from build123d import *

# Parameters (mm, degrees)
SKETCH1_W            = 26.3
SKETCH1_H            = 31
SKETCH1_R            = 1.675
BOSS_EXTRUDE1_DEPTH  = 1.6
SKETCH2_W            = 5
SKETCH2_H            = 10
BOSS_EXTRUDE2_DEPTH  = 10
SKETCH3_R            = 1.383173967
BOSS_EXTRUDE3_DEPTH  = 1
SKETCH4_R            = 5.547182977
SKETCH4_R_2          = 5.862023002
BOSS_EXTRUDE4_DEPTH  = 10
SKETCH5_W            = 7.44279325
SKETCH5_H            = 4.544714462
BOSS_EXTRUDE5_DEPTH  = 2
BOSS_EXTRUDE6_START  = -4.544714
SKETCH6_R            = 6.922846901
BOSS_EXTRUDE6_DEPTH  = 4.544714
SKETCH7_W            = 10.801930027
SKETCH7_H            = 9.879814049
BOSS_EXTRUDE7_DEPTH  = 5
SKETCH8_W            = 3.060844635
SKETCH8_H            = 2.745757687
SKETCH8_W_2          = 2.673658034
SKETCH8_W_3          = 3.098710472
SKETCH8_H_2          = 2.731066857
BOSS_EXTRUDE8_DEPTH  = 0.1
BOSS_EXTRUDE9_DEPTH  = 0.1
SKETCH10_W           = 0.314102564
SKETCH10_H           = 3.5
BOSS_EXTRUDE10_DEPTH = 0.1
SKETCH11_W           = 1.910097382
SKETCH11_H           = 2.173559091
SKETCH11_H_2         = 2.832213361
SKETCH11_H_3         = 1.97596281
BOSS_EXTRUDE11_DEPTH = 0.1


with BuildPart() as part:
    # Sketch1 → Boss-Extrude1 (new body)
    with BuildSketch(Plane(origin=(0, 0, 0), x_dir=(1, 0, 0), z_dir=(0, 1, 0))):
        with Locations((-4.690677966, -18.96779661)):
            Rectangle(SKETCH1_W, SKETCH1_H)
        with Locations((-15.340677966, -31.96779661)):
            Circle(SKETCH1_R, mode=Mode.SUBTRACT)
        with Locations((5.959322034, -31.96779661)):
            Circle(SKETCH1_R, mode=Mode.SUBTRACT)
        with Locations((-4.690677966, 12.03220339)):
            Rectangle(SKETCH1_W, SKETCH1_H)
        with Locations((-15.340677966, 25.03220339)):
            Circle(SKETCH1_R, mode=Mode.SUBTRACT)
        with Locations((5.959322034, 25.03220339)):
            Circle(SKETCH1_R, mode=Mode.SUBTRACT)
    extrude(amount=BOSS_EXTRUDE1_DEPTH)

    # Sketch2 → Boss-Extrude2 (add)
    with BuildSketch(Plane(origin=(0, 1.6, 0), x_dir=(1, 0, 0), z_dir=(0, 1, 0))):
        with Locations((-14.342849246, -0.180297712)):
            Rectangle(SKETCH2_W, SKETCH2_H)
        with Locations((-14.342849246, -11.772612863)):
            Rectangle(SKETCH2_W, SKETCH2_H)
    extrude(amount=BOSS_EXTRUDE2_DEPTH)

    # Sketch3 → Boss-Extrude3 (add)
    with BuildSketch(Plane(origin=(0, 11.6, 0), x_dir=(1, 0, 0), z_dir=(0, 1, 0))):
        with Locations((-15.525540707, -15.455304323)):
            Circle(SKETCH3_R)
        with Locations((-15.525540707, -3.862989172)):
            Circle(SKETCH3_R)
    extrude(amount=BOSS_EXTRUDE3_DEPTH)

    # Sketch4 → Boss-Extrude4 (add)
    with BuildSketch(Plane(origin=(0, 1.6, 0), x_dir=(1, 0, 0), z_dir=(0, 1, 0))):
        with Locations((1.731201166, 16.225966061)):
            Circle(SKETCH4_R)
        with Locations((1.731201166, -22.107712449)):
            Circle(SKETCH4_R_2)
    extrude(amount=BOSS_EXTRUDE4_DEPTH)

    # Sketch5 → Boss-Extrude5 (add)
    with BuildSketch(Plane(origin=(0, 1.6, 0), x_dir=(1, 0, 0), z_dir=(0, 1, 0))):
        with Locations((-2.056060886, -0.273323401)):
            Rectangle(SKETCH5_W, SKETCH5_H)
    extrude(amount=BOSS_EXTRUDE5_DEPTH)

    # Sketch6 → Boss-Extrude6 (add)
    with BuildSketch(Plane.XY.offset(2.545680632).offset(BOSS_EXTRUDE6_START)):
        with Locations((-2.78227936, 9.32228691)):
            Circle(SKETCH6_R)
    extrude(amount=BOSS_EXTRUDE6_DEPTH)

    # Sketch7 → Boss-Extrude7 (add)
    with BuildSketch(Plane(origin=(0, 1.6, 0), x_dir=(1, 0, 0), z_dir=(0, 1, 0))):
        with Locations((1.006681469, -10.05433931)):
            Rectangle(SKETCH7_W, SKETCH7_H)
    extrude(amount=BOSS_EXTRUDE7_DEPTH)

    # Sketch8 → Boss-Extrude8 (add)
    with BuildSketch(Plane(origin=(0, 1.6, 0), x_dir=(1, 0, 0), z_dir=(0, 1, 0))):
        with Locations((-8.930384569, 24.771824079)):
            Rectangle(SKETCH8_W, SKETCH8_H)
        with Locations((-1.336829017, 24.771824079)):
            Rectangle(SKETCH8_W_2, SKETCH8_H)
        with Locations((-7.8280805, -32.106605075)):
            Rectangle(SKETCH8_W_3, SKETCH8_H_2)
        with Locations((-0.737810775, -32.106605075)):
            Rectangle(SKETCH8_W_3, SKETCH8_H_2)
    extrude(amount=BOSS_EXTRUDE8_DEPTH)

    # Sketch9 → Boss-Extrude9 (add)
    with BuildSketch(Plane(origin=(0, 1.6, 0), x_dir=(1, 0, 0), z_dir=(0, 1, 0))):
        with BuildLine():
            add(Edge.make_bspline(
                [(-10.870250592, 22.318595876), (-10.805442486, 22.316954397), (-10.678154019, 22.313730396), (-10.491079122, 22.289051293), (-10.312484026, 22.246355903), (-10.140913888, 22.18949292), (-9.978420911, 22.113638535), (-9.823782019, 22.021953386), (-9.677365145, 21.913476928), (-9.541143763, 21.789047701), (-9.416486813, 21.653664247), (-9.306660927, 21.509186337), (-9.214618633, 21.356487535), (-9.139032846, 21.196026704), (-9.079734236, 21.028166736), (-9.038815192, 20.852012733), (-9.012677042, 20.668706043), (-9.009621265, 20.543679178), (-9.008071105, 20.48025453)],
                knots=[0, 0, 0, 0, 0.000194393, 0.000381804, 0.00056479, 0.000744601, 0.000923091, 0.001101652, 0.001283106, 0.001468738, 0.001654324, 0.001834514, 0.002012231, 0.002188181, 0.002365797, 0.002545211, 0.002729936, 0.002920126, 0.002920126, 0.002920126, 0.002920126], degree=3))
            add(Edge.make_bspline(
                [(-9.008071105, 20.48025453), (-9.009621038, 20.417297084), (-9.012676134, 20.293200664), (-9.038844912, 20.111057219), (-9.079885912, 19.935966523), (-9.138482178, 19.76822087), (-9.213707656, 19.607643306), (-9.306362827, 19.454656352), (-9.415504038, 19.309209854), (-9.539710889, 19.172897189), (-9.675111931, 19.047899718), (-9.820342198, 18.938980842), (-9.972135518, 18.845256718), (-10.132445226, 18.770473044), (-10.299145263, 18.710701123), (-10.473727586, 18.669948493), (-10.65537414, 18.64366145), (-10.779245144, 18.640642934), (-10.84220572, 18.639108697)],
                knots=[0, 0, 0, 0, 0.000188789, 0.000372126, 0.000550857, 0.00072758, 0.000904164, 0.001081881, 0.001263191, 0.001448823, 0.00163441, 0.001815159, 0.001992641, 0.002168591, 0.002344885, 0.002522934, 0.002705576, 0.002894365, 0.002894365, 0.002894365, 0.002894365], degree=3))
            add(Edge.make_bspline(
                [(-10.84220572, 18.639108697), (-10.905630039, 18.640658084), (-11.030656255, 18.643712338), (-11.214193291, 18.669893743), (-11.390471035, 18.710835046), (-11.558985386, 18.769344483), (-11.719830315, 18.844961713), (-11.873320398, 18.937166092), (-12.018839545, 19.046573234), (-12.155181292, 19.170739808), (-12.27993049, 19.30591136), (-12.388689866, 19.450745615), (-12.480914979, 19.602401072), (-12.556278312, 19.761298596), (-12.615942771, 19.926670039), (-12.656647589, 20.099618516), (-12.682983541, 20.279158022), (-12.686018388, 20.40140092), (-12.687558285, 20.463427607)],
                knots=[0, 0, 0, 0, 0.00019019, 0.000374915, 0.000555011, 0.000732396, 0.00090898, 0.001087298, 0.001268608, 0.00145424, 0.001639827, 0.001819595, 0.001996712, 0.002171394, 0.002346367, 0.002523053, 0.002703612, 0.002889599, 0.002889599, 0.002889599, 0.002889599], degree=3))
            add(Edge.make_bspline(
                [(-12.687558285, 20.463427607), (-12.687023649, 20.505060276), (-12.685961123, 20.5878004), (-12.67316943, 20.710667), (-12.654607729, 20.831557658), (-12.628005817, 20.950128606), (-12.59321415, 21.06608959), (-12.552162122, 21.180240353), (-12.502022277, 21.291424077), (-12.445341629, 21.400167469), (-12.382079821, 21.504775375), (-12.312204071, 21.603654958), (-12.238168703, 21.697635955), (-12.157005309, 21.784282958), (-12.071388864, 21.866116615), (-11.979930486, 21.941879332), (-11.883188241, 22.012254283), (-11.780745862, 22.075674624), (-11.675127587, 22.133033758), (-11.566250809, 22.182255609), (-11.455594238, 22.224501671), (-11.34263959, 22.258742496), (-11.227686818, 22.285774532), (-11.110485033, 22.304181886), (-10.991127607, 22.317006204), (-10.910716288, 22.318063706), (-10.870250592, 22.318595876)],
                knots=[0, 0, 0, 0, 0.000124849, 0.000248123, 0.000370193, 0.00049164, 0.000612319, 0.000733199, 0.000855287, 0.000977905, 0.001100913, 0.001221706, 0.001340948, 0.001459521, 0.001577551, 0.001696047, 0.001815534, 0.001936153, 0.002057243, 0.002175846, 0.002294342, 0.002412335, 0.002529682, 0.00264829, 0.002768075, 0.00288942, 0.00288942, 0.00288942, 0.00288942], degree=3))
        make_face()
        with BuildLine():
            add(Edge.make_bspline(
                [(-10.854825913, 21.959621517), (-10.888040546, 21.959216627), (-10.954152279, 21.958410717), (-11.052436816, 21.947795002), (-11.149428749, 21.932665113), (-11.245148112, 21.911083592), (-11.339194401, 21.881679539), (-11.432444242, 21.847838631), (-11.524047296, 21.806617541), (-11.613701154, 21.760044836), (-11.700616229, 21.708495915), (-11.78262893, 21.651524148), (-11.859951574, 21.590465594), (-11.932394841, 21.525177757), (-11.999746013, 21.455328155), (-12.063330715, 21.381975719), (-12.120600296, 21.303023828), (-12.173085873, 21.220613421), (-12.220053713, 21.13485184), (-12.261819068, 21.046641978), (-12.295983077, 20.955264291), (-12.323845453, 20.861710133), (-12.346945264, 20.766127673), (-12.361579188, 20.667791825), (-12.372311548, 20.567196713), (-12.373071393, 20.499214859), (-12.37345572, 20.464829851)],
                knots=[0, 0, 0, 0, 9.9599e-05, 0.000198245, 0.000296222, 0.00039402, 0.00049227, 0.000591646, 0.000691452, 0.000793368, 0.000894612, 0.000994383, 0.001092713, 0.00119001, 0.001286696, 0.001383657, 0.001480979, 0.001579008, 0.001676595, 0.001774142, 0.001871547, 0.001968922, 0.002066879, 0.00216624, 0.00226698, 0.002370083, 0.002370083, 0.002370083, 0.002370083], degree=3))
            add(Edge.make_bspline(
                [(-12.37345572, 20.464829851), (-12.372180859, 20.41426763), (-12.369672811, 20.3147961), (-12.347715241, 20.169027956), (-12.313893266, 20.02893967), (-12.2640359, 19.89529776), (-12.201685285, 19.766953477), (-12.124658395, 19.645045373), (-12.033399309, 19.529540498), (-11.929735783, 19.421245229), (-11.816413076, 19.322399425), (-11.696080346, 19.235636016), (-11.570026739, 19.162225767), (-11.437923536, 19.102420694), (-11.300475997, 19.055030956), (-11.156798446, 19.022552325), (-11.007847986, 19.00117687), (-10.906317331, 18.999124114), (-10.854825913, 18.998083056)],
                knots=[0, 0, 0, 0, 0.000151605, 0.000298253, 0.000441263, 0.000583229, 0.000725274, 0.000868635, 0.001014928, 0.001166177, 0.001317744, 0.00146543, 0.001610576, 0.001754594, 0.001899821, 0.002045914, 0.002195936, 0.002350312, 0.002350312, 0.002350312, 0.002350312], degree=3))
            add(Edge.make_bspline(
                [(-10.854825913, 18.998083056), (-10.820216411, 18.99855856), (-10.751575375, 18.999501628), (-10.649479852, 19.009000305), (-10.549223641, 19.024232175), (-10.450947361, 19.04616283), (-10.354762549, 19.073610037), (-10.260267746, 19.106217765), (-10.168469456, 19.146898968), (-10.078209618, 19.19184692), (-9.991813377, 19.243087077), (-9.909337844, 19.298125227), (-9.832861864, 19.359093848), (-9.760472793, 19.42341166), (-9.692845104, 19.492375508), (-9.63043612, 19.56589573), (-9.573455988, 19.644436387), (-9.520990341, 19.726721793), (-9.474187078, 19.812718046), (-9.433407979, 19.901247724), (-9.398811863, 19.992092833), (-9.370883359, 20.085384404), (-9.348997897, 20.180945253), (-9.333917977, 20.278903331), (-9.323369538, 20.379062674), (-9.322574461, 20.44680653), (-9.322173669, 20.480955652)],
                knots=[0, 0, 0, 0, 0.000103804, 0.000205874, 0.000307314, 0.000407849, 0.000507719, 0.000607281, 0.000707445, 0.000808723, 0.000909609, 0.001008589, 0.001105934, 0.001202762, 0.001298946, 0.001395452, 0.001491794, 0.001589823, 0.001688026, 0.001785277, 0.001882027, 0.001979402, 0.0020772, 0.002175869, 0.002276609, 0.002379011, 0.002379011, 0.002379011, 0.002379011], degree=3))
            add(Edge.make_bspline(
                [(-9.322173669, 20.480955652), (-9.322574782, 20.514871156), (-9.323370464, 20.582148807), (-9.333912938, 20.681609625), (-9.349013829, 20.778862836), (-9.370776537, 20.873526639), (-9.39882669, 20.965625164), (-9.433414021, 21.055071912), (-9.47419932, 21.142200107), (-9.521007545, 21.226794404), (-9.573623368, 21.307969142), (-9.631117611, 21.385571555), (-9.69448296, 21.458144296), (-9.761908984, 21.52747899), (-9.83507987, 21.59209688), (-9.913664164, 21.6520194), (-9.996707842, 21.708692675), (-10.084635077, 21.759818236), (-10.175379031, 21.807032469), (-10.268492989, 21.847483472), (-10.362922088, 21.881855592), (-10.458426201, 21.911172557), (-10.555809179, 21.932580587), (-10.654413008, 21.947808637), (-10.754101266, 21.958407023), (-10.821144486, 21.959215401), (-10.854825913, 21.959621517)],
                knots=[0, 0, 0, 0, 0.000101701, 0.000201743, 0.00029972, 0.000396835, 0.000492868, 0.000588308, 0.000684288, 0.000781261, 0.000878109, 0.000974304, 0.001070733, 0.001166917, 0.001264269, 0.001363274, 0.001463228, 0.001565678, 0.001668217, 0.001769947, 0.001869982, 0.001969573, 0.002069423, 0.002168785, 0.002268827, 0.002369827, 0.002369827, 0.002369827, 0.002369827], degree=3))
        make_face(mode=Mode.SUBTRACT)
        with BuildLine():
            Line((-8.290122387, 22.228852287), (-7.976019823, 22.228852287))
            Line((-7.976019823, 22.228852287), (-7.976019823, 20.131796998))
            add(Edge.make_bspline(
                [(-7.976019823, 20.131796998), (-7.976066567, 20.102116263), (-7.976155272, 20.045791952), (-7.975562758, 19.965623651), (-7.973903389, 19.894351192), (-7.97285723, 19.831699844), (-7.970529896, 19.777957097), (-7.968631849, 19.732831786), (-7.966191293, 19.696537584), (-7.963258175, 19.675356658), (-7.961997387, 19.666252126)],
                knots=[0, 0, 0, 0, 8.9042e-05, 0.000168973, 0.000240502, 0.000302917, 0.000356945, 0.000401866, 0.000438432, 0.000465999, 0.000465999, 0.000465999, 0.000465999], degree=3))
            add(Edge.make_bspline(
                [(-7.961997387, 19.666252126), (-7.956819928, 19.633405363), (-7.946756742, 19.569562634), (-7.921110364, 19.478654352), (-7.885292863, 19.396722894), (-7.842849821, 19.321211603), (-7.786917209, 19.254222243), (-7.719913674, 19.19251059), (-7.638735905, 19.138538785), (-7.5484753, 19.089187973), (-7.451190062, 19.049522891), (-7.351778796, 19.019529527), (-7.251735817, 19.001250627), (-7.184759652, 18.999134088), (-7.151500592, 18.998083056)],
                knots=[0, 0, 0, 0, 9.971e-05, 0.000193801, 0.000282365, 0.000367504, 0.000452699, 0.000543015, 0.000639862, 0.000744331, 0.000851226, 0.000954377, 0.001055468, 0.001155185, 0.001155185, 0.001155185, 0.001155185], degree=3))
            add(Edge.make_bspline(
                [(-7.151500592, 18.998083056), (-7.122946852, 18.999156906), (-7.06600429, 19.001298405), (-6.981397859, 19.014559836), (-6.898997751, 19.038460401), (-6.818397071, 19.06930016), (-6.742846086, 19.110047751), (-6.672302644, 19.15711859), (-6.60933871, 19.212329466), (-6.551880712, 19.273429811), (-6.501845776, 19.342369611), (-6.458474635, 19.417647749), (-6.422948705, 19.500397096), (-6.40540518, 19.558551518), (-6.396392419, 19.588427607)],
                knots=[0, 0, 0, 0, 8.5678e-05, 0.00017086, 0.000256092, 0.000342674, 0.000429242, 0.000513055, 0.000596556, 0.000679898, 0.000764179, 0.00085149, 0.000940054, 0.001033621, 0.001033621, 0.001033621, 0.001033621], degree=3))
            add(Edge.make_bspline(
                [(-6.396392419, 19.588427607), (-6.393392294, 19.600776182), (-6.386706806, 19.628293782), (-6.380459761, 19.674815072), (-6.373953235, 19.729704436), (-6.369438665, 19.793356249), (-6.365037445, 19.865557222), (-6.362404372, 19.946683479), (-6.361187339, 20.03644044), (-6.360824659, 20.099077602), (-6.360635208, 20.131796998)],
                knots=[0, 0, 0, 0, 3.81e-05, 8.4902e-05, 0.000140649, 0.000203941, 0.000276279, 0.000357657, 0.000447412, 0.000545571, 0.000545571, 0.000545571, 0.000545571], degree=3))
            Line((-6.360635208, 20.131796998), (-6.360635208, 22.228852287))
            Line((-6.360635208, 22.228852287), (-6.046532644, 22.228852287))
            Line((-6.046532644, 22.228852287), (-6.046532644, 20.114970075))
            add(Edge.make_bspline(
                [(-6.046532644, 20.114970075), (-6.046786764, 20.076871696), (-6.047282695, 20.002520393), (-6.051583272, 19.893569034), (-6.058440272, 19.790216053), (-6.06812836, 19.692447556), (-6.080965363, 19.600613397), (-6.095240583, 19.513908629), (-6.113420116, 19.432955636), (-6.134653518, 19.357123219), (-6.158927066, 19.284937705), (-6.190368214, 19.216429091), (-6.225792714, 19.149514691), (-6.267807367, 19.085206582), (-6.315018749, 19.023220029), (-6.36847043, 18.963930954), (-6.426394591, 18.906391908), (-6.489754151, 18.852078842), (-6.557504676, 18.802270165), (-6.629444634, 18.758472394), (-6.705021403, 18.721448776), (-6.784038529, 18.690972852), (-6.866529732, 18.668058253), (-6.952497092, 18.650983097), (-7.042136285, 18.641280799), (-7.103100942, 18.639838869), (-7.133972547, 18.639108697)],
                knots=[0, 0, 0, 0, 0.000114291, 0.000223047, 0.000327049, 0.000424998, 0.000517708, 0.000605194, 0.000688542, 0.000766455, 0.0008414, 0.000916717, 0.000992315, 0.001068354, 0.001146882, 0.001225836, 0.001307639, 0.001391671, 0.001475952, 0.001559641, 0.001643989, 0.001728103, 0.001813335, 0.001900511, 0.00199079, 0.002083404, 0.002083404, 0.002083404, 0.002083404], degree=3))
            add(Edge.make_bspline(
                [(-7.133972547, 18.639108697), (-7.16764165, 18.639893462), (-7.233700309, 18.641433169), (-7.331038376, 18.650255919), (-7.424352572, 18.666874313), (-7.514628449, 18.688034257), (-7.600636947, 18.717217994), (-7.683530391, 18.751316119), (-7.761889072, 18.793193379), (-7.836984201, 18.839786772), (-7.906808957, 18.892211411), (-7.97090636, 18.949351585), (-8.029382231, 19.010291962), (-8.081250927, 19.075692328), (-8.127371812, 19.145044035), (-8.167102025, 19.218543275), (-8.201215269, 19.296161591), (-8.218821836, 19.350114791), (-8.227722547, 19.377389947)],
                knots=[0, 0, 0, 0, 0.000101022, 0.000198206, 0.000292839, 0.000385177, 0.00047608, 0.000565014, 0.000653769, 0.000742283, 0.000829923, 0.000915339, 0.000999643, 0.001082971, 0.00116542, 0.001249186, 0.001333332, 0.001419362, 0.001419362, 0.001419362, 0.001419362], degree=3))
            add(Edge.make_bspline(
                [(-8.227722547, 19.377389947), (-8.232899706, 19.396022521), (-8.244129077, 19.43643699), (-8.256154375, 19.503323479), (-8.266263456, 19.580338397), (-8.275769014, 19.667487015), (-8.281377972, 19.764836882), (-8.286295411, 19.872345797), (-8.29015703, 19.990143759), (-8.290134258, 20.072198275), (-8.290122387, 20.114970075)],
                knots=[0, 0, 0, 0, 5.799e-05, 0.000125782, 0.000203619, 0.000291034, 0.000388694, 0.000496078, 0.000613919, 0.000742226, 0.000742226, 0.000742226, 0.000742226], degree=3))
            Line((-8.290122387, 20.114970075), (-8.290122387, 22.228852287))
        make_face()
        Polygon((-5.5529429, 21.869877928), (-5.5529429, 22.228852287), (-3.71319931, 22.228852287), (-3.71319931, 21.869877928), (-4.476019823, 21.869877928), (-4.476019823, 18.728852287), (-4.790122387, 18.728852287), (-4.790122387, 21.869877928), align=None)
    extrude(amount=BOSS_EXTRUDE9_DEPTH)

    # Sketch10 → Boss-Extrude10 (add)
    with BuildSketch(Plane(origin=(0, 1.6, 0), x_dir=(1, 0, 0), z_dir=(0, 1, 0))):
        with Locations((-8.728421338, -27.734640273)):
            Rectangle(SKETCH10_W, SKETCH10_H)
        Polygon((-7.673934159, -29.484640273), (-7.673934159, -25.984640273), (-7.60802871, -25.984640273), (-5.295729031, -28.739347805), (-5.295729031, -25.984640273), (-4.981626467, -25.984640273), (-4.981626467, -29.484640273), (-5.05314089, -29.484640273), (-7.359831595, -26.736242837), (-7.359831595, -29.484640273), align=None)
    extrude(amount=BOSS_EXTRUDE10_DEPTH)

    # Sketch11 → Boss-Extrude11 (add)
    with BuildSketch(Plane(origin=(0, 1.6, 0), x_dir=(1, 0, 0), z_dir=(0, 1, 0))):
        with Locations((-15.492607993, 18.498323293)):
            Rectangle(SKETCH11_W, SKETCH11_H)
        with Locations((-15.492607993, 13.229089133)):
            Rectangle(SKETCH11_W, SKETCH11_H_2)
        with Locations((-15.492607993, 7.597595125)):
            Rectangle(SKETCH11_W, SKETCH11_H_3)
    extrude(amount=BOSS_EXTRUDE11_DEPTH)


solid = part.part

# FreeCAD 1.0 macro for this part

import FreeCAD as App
import Part
import Sketcher


def add_polygon(sketch, points):
    """Adds a closed chain of lines whose ends are joined by coincident constraints."""
    first, n = sketch.GeometryCount, len(points)
    for a, b in zip(points, points[1:] + points[:1]):
        sketch.addGeometry(Part.LineSegment(App.Vector(*a, 0), App.Vector(*b, 0)), False)
    for i in range(n):
        sketch.addConstraint(Sketcher.Constraint("Coincident", first + i, 2, first + (i + 1) % n, 1))

doc = App.newDocument("Part")
body = doc.addObject("PartDesign::Body", "Body")

sketch1 = doc.addObject("Sketcher::SketchObject", "Sketch")
body.addObject(sketch1)
sketch1.AttachmentSupport = (doc.XZ_Plane, [""])
sketch1.MapMode = "FlatFace"
add_polygon(sketch1, [(-17.8, 34.5), (8.5, 34.5), (8.5, -27.5), (-17.8, -27.5)])
sketch1.addGeometry(Part.Circle(App.Vector(-15.3, 32, 0), App.Vector(0, 0, 1), 1.7), False)
sketch1.addGeometry(Part.Circle(App.Vector(6, 32, 0), App.Vector(0, 0, 1), 1.7), False)
sketch1.addGeometry(Part.Circle(App.Vector(-15.3, -25, 0), App.Vector(0, 0, 1), 1.7), False)
sketch1.addGeometry(Part.Circle(App.Vector(6, -25, 0), App.Vector(0, 0, 1), 1.7), False)
sketch1.addConstraint([
    Sketcher.Constraint("Horizontal", 0),
    Sketcher.Constraint("Vertical", 1),
    Sketcher.Constraint("Horizontal", 2),
    Sketcher.Constraint("Vertical", 3),
    Sketcher.Constraint("Equal", 4, 5),
    Sketcher.Constraint("Equal", 5, 6),
    Sketcher.Constraint("Equal", 6, 7),
    Sketcher.Constraint("Horizontal", 4, 3, 5, 3),
    Sketcher.Constraint("Horizontal", 6, 3, 7, 3),
    Sketcher.Constraint("Vertical", 4, 3, 6, 3),
    Sketcher.Constraint("Vertical", 5, 3, 7, 3),
    Sketcher.Constraint("Diameter", 4, 3.35),
    Sketcher.Constraint("DistanceY", 1, 2, 1, 1, 62.0),
    Sketcher.Constraint("DistanceX", 0, 1, 0, 2, 26.3),
    Sketcher.Constraint("DistanceY", 6, 3, 4, 3, 57.0),
    Sketcher.Constraint("DistanceX", 4, 3, 5, 3, 21.3),
    Sketcher.Constraint("DistanceX", 5, 3, 0, 2, 2.5),
    Sketcher.Constraint("DistanceY", 5, 3, 0, 2, 2.5),
    Sketcher.Constraint("DistanceX", 4, 3, -1, 1, 15.340678),
    Sketcher.Constraint("DistanceY", -1, 1, 4, 3, 31.967797),
])
pad1 = doc.addObject("PartDesign::Pad", "Pad")
body.addObject(pad1)
pad1.Profile = sketch1
pad1.Length = 1.6
pad1.Reversed = True

sketch2 = doc.addObject("Sketcher::SketchObject", "Sketch001")
body.addObject(sketch2)
sketch2.AttachmentSupport = (doc.XZ_Plane, [""])
sketch2.MapMode = "FlatFace"
sketch2.AttachmentOffset = App.Placement(App.Vector(0, 0, -1.6), App.Rotation())
add_polygon(sketch2, [(-17, -5), (-17, 5), (-12, 5), (-12, -5)])
add_polygon(sketch2, [(-17, 7), (-17, 17), (-12, 17), (-12, 7)])
sketch2.addConstraint([
    Sketcher.Constraint("Vertical", 0),
    Sketcher.Constraint("Horizontal", 1),
    Sketcher.Constraint("Vertical", 2),
    Sketcher.Constraint("Horizontal", 3),
    Sketcher.Constraint("Vertical", 4),
    Sketcher.Constraint("Horizontal", 5),
    Sketcher.Constraint("Vertical", 6),
    Sketcher.Constraint("Horizontal", 7),
    Sketcher.Constraint("Vertical", 3, 2, 4, 2),
    Sketcher.Constraint("Vertical", 2, 2, 5, 2),
    Sketcher.Constraint("Equal", 2, 4),
    Sketcher.Constraint("DistanceX", 1, 1, 1, 2, 5.0),
    Sketcher.Constraint("DistanceY", 0, 1, 0, 2, 10.0),
    Sketcher.Constraint("DistanceX", 0, 2, -1, 1, 16.842849),
    Sketcher.Constraint("DistanceY", -1, 1, 0, 2, 5.180298),
    Sketcher.Constraint("DistanceY", -1, 1, 4, 2, 16.772613),
])
pad2 = doc.addObject("PartDesign::Pad", "Pad001")
body.addObject(pad2)
pad2.Profile = sketch2
pad2.Length = 10
pad2.Reversed = True

sketch3 = doc.addObject("Sketcher::SketchObject", "Sketch002")
body.addObject(sketch3)
sketch3.AttachmentSupport = (doc.XZ_Plane, [""])
sketch3.MapMode = "FlatFace"
sketch3.AttachmentOffset = App.Placement(App.Vector(0, 0, -11.6), App.Rotation())
sketch3.addGeometry([
    Part.Circle(App.Vector(-15.5, 15.5, 0), App.Vector(0, 0, 1), 1.4),
    Part.Circle(App.Vector(-15.5, 3.9, 0), App.Vector(0, 0, 1), 1.4),
], False)
sketch3.addConstraint([
    Sketcher.Constraint("Equal", 0, 1),
    Sketcher.Constraint("Vertical", 0, 3, 1, 3),
    Sketcher.Constraint("Diameter", 0, 2.766348),
    Sketcher.Constraint("DistanceX", 0, 3, -1, 1, 15.525541),
    Sketcher.Constraint("DistanceY", -1, 1, 1, 3, 3.862989),
    Sketcher.Constraint("DistanceY", -1, 1, 0, 3, 15.455304),
])
pad3 = doc.addObject("PartDesign::Pad", "Pad002")
body.addObject(pad3)
pad3.Profile = sketch3
pad3.Length = 1
pad3.Reversed = True

sketch4 = doc.addObject("Sketcher::SketchObject", "Sketch003")
body.addObject(sketch4)
sketch4.AttachmentSupport = (doc.XZ_Plane, [""])
sketch4.MapMode = "FlatFace"
sketch4.AttachmentOffset = App.Placement(App.Vector(0, 0, -1.6), App.Rotation())
sketch4.addGeometry([
    Part.Circle(App.Vector(2, -16, 0), App.Vector(0, 0, 1), 6),
    Part.Circle(App.Vector(2, 22, 0), App.Vector(0, 0, 1), 6),
], False)
sketch4.addConstraint([
    Sketcher.Constraint("Vertical", 0, 3, 1, 3),
    Sketcher.Constraint("Diameter", 0, 11.094366),
    Sketcher.Constraint("Diameter", 1, 11.724046),
    Sketcher.Constraint("DistanceX", -1, 1, 0, 3, 1.731201),
    Sketcher.Constraint("DistanceY", 0, 3, 1, 3, 38.333679),
    Sketcher.Constraint("DistanceY", 0, 3, -1, 1, 16.225966),
])
pad4 = doc.addObject("PartDesign::Pad", "Pad003")
body.addObject(pad4)
pad4.Profile = sketch4
pad4.Length = 10
pad4.Reversed = True

sketch5 = doc.addObject("Sketcher::SketchObject", "Sketch004")
body.addObject(sketch5)
sketch5.AttachmentSupport = (doc.XZ_Plane, [""])
sketch5.MapMode = "FlatFace"
sketch5.AttachmentOffset = App.Placement(App.Vector(0, 0, -1.6), App.Rotation())
add_polygon(sketch5, [(-5.8, -2), (-5.8, 2.5), (1.7, 2.5), (1.7, -2)])
sketch5.addConstraint([
    Sketcher.Constraint("Vertical", 0),
    Sketcher.Constraint("Horizontal", 1),
    Sketcher.Constraint("Vertical", 2),
    Sketcher.Constraint("Horizontal", 3),
    Sketcher.Constraint("DistanceX", 1, 1, 1, 2, 7.442793),
    Sketcher.Constraint("DistanceY", 0, 1, 0, 2, 4.544714),
    Sketcher.Constraint("DistanceY", -1, 1, 0, 2, 2.545681),
    Sketcher.Constraint("DistanceX", 0, 2, -1, 1, 5.777458),
])
pad5 = doc.addObject("PartDesign::Pad", "Pad004")
body.addObject(pad5)
pad5.Profile = sketch5
pad5.Length = 2
pad5.Reversed = True

sketch6 = doc.addObject("Sketcher::SketchObject", "Sketch005")
body.addObject(sketch6)
sketch6.AttachmentSupport = (doc.XY_Plane, [""])
sketch6.MapMode = "FlatFace"
sketch6.AttachmentOffset = App.Placement(App.Vector(0, 0, -1.999033), App.Rotation())
sketch6.addGeometry(Part.Circle(App.Vector(-3, 9, 0), App.Vector(0, 0, 1), 7), False)
sketch6.addConstraint([
    Sketcher.Constraint("Diameter", 0, 13.845694),
    Sketcher.Constraint("DistanceX", 0, 3, -1, 1, 2.782279),
    Sketcher.Constraint("DistanceY", -1, 1, 0, 3, 9.322287),
])
pad6 = doc.addObject("PartDesign::Pad", "Pad005")
body.addObject(pad6)
pad6.Profile = sketch6
pad6.Length = 4.544714

sketch7 = doc.addObject("Sketcher::SketchObject", "Sketch006")
body.addObject(sketch7)
sketch7.AttachmentSupport = (doc.XZ_Plane, [""])
sketch7.MapMode = "FlatFace"
sketch7.AttachmentOffset = App.Placement(App.Vector(0, 0, -1.6), App.Rotation())
add_polygon(sketch7, [(-4, 5), (-4, 15), (6, 15), (6, 5)])
sketch7.addConstraint([
    Sketcher.Constraint("Vertical", 0),
    Sketcher.Constraint("Horizontal", 1),
    Sketcher.Constraint("Vertical", 2),
    Sketcher.Constraint("Horizontal", 3),
    Sketcher.Constraint("DistanceX", 1, 1, 1, 2, 10.80193),
    Sketcher.Constraint("DistanceY", 0, 1, 0, 2, 9.879814),
    Sketcher.Constraint("DistanceX", 0, 2, -1, 1, 4.394284),
    Sketcher.Constraint("DistanceY", -1, 1, 0, 2, 14.994246),
])
pad7 = doc.addObject("PartDesign::Pad", "Pad006")
body.addObject(pad7)
pad7.Profile = sketch7
pad7.Length = 5
pad7.Reversed = True

sketch8 = doc.addObject("Sketcher::SketchObject", "Sketch007")
body.addObject(sketch8)
sketch8.AttachmentSupport = (doc.XZ_Plane, [""])
sketch8.MapMode = "FlatFace"
sketch8.AttachmentOffset = App.Placement(App.Vector(0, 0, -1.6), App.Rotation())
add_polygon(sketch8, [(-10.5, -26.1), (-10.5, -23.4), (-7.4, -23.4), (-7.4, -26.1)])
add_polygon(sketch8, [(-2.7, -26.1), (-2.7, -23.4), (0, -23.4), (0, -26.1)])
add_polygon(sketch8, [(-9.4, 30.7), (-9.4, 33.5), (-6.3, 33.5), (-6.3, 30.7)])
add_polygon(sketch8, [(-2.3, 30.7), (-2.3, 33.5), (0.8, 33.5), (0.8, 30.7)])
sketch8.addConstraint([
    Sketcher.Constraint("Vertical", 0),
    Sketcher.Constraint("Horizontal", 1),
    Sketcher.Constraint("Vertical", 2),
    Sketcher.Constraint("Horizontal", 3),
    Sketcher.Constraint("Vertical", 4),
    Sketcher.Constraint("Horizontal", 5),
    Sketcher.Constraint("Vertical", 6),
    Sketcher.Constraint("Horizontal", 7),
    Sketcher.Constraint("Vertical", 8),
    Sketcher.Constraint("Horizontal", 9),
    Sketcher.Constraint("Vertical", 10),
    Sketcher.Constraint("Horizontal", 11),
    Sketcher.Constraint("Vertical", 12),
    Sketcher.Constraint("Horizontal", 13),
    Sketcher.Constraint("Vertical", 14),
    Sketcher.Constraint("Horizontal", 15),
    Sketcher.Constraint("PointOnObject", 5, 2, -2),
    Sketcher.Constraint("Horizontal", 1, 2, 4, 2),
    Sketcher.Constraint("Horizontal", 3, 2, 6, 2),
    Sketcher.Constraint("Horizontal", 9, 2, 12, 2),
    Sketcher.Constraint("Horizontal", 11, 2, 14, 2),
    Sketcher.Constraint("Equal", 11, 13),
    Sketcher.Constraint("DistanceX", 5, 1, 5, 2, 2.673658),
    Sketcher.Constraint("DistanceX", 9, 1, 9, 2, 3.09871),
    Sketcher.Constraint("DistanceX", 1, 1, 1, 2, 3.060845),
    Sketcher.Constraint("DistanceY", 0, 1, 0, 2, 2.745758),
    Sketcher.Constraint("DistanceY", 8, 1, 8, 2, 2.731067),
    Sketcher.Constraint("DistanceY", -1, 1, 8, 2, 33.472139),
    Sketcher.Constraint("DistanceX", 0, 2, 4, 2, 7.787149),
    Sketcher.Constraint("DistanceX", 0, 2, 8, 2, 1.083371),
    Sketcher.Constraint("DistanceY", 3, 2, 8, 2, 59.616841),
    Sketcher.Constraint("DistanceX", 9, 2, 12, 2, 3.991559),
])
pad8 = doc.addObject("PartDesign::Pad", "Pad007")
body.addObject(pad8)
pad8.Profile = sketch8
pad8.Length = 0.1
pad8.Reversed = True

sketch9 = doc.addObject("Sketcher::SketchObject", "Sketch008")
body.addObject(sketch9)
sketch9.AttachmentSupport = (doc.XZ_Plane, [""])
sketch9.MapMode = "FlatFace"
sketch9.AttachmentOffset = App.Placement(App.Vector(0, 0, -1.6), App.Rotation())
sketch9.addGeometry(Part.BSplineCurve([App.Vector(-10.870251, -22.318596, 0), App.Vector(-10.805442, -22.316954, 0), App.Vector(-10.678154, -22.31373, 0), App.Vector(-10.491079, -22.289051, 0), App.Vector(-10.312484, -22.246356, 0), App.Vector(-10.140914, -22.189493, 0), App.Vector(-9.978421, -22.113639, 0), App.Vector(-9.823782, -22.021953, 0), App.Vector(-9.677365, -21.913477, 0), App.Vector(-9.541144, -21.789048, 0), App.Vector(-9.416487, -21.653664, 0), App.Vector(-9.306661, -21.509186, 0), App.Vector(-9.214619, -21.356488, 0), App.Vector(-9.139033, -21.196027, 0), App.Vector(-9.079734, -21.028167, 0), App.Vector(-9.038815, -20.852013, 0), App.Vector(-9.012677, -20.668706, 0), App.Vector(-9.009621, -20.543679, 0), App.Vector(-9.008071, -20.480255, 0)], [4, 1, 1, 1, 1, 1, 1, 1, 1, 1, 1, 1, 1, 1, 1, 1, 4], [0, 0.000194393, 0.000381804, 0.00056479, 0.000744601, 0.000923091, 0.001101652, 0.001283106, 0.001468738, 0.001654324, 0.001834514, 0.002012231, 0.002188181, 0.002365797, 0.002545211, 0.002729936, 0.002920126], False, 3, [1, 1, 1, 1, 1, 1, 1, 1, 1, 1, 1, 1, 1, 1, 1, 1, 1, 1, 1], False), False)
sketch9.addGeometry(Part.BSplineCurve([App.Vector(-12.687558, -20.463428, 0), App.Vector(-12.687024, -20.50506, 0), App.Vector(-12.685961, -20.5878, 0), App.Vector(-12.673169, -20.710667, 0), App.Vector(-12.654608, -20.831558, 0), App.Vector(-12.628006, -20.950129, 0), App.Vector(-12.593214, -21.06609, 0), App.Vector(-12.552162, -21.18024, 0), App.Vector(-12.502022, -21.291424, 0), App.Vector(-12.445342, -21.400167, 0), App.Vector(-12.38208, -21.504775, 0), App.Vector(-12.312204, -21.603655, 0), App.Vector(-12.238169, -21.697636, 0), App.Vector(-12.157005, -21.784283, 0), App.Vector(-12.071389, -21.866117, 0), App.Vector(-11.97993, -21.941879, 0), App.Vector(-11.883188, -22.012254, 0), App.Vector(-11.780746, -22.075675, 0), App.Vector(-11.675128, -22.133034, 0), App.Vector(-11.566251, -22.182256, 0), App.Vector(-11.455594, -22.224502, 0), App.Vector(-11.34264, -22.258742, 0), App.Vector(-11.227687, -22.285775, 0), App.Vector(-11.110485, -22.304182, 0), App.Vector(-10.991128, -22.317006, 0), App.Vector(-10.910716, -22.318064, 0), App.Vector(-10.870251, -22.318596, 0)], [4, 1, 1, 1, 1, 1, 1, 1, 1, 1, 1, 1, 1, 1, 1, 1, 1, 1, 1, 1, 1, 1, 1, 1, 4], [0, 0.000124849, 0.000248123, 0.000370193, 0.00049164, 0.000612319, 0.000733199, 0.000855287, 0.000977905, 0.001100913, 0.001221706, 0.001340948, 0.001459521, 0.001577551, 0.001696047, 0.001815534, 0.001936153, 0.002057243, 0.002175846, 0.002294342, 0.002412335, 0.002529682, 0.00264829, 0.002768075, 0.00288942], False, 3, [1, 1, 1, 1, 1, 1, 1, 1, 1, 1, 1, 1, 1, 1, 1, 1, 1, 1, 1, 1, 1, 1, 1, 1, 1, 1, 1], False), False)
sketch9.addGeometry(Part.BSplineCurve([App.Vector(-10.842206, -18.639109, 0), App.Vector(-10.90563, -18.640658, 0), App.Vector(-11.030656, -18.643712, 0), App.Vector(-11.214193, -18.669894, 0), App.Vector(-11.390471, -18.710835, 0), App.Vector(-11.558985, -18.769344, 0), App.Vector(-11.71983, -18.844962, 0), App.Vector(-11.87332, -18.937166, 0), App.Vector(-12.01884, -19.046573, 0), App.Vector(-12.155181, -19.17074, 0), App.Vector(-12.27993, -19.305911, 0), App.Vector(-12.38869, -19.450746, 0), App.Vector(-12.480915, -19.602401, 0), App.Vector(-12.556278, -19.761299, 0), App.Vector(-12.615943, -19.92667, 0), App.Vector(-12.656648, -20.099619, 0), App.Vector(-12.682984, -20.279158, 0), App.Vector(-12.686018, -20.401401, 0), App.Vector(-12.687558, -20.463428, 0)], [4, 1, 1, 1, 1, 1, 1, 1, 1, 1, 1, 1, 1, 1, 1, 1, 4], [0, 0.00019019, 0.000374915, 0.000555011, 0.000732396, 0.00090898, 0.001087298, 0.001268608, 0.00145424, 0.001639827, 0.001819595, 0.001996712, 0.002171394, 0.002346367, 0.002523053, 0.002703612, 0.002889599], False, 3, [1, 1, 1, 1, 1, 1, 1, 1, 1, 1, 1, 1, 1, 1, 1, 1, 1, 1, 1], False), False)
sketch9.addGeometry(Part.BSplineCurve([App.Vector(-9.008071, -20.480255, 0), App.Vector(-9.009621, -20.417297, 0), App.Vector(-9.012676, -20.293201, 0), App.Vector(-9.038845, -20.111057, 0), App.Vector(-9.079886, -19.935967, 0), App.Vector(-9.138482, -19.768221, 0), App.Vector(-9.213708, -19.607643, 0), App.Vector(-9.306363, -19.454656, 0), App.Vector(-9.415504, -19.30921, 0), App.Vector(-9.539711, -19.172897, 0), App.Vector(-9.675112, -19.0479, 0), App.Vector(-9.820342, -18.938981, 0), App.Vector(-9.972136, -18.845257, 0), App.Vector(-10.132445, -18.770473, 0), App.Vector(-10.299145, -18.710701, 0), App.Vector(-10.473728, -18.669948, 0), App.Vector(-10.655374, -18.643661, 0), App.Vector(-10.779245, -18.640643, 0), App.Vector(-10.842206, -18.639109, 0)], [4, 1, 1, 1, 1, 1, 1, 1, 1, 1, 1, 1, 1, 1, 1, 1, 4], [0, 0.000188789, 0.000372126, 0.000550857, 0.00072758, 0.000904164, 0.001081881, 0.001263191, 0.001448823, 0.00163441, 0.001815159, 0.001992641, 0.002168591, 0.002344885, 0.002522934, 0.002705576, 0.002894365], False, 3, [1, 1, 1, 1, 1, 1, 1, 1, 1, 1, 1, 1, 1, 1, 1, 1, 1, 1, 1], False), False)
sketch9.addGeometry(Part.BSplineCurve([App.Vector(-9.322174, -20.480956, 0), App.Vector(-9.322575, -20.514871, 0), App.Vector(-9.32337, -20.582149, 0), App.Vector(-9.333913, -20.68161, 0), App.Vector(-9.349014, -20.778863, 0), App.Vector(-9.370777, -20.873527, 0), App.Vector(-9.398827, -20.965625, 0), App.Vector(-9.433414, -21.055072, 0), App.Vector(-9.474199, -21.1422, 0), App.Vector(-9.521008, -21.226794, 0), App.Vector(-9.573623, -21.307969, 0), App.Vector(-9.631118, -21.385572, 0), App.Vector(-9.694483, -21.458144, 0), App.Vector(-9.761909, -21.527479, 0), App.Vector(-9.83508, -21.592097, 0), App.Vector(-9.913664, -21.652019, 0), App.Vector(-9.996708, -21.708693, 0), App.Vector(-10.084635, -21.759818, 0), App.Vector(-10.175379, -21.807032, 0), App.Vector(-10.268493, -21.847483, 0), App.Vector(-10.362922, -21.881856, 0), App.Vector(-10.458426, -21.911173, 0), App.Vector(-10.555809, -21.932581, 0), App.Vector(-10.654413, -21.947809, 0), App.Vector(-10.754101, -21.958407, 0), App.Vector(-10.821144, -21.959215, 0), App.Vector(-10.854826, -21.959622, 0)], [4, 1, 1, 1, 1, 1, 1, 1, 1, 1, 1, 1, 1, 1, 1, 1, 1, 1, 1, 1, 1, 1, 1, 1, 4], [0, 0.000101701, 0.000201743, 0.00029972, 0.000396835, 0.000492868, 0.000588308, 0.000684288, 0.000781261, 0.000878109, 0.000974304, 0.001070733, 0.001166917, 0.001264269, 0.001363274, 0.001463228, 0.001565678, 0.001668217, 0.001769947, 0.001869982, 0.001969573, 0.002069423, 0.002168785, 0.002268827, 0.002369827], False, 3, [1, 1, 1, 1, 1, 1, 1, 1, 1, 1, 1, 1, 1, 1, 1, 1, 1, 1, 1, 1, 1, 1, 1, 1, 1, 1, 1], False), False)
sketch9.addGeometry(Part.BSplineCurve([App.Vector(-10.854826, -18.998083, 0), App.Vector(-10.820216, -18.998559, 0), App.Vector(-10.751575, -18.999502, 0), App.Vector(-10.64948, -19.009, 0), App.Vector(-10.549224, -19.024232, 0), App.Vector(-10.450947, -19.046163, 0), App.Vector(-10.354763, -19.07361, 0), App.Vector(-10.260268, -19.106218, 0), App.Vector(-10.168469, -19.146899, 0), App.Vector(-10.07821, -19.191847, 0), App.Vector(-9.991813, -19.243087, 0), App.Vector(-9.909338, -19.298125, 0), App.Vector(-9.832862, -19.359094, 0), App.Vector(-9.760473, -19.423412, 0), App.Vector(-9.692845, -19.492376, 0), App.Vector(-9.630436, -19.565896, 0), App.Vector(-9.573456, -19.644436, 0), App.Vector(-9.52099, -19.726722, 0), App.Vector(-9.474187, -19.812718, 0), App.Vector(-9.433408, -19.901248, 0), App.Vector(-9.398812, -19.992093, 0), App.Vector(-9.370883, -20.085384, 0), App.Vector(-9.348998, -20.180945, 0), App.Vector(-9.333918, -20.278903, 0), App.Vector(-9.32337, -20.379063, 0), App.Vector(-9.322574, -20.446807, 0), App.Vector(-9.322174, -20.480956, 0)], [4, 1, 1, 1, 1, 1, 1, 1, 1, 1, 1, 1, 1, 1, 1, 1, 1, 1, 1, 1, 1, 1, 1, 1, 4], [0, 0.000103804, 0.000205874, 0.000307314, 0.000407849, 0.000507719, 0.000607281, 0.000707445, 0.000808723, 0.000909609, 0.001008589, 0.001105934, 0.001202762, 0.001298946, 0.001395452, 0.001491794, 0.001589823, 0.001688026, 0.001785277, 0.001882027, 0.001979402, 0.0020772, 0.002175869, 0.002276609, 0.002379011], False, 3, [1, 1, 1, 1, 1, 1, 1, 1, 1, 1, 1, 1, 1, 1, 1, 1, 1, 1, 1, 1, 1, 1, 1, 1, 1, 1, 1], False), False)
sketch9.addGeometry(Part.BSplineCurve([App.Vector(-12.373456, -20.46483, 0), App.Vector(-12.372181, -20.414268, 0), App.Vector(-12.369673, -20.314796, 0), App.Vector(-12.347715, -20.169028, 0), App.Vector(-12.313893, -20.02894, 0), App.Vector(-12.264036, -19.895298, 0), App.Vector(-12.201685, -19.766953, 0), App.Vector(-12.124658, -19.645045, 0), App.Vector(-12.033399, -19.52954, 0), App.Vector(-11.929736, -19.421245, 0), App.Vector(-11.816413, -19.322399, 0), App.Vector(-11.69608, -19.235636, 0), App.Vector(-11.570027, -19.162226, 0), App.Vector(-11.437924, -19.102421, 0), App.Vector(-11.300476, -19.055031, 0), App.Vector(-11.156798, -19.022552, 0), App.Vector(-11.007848, -19.001177, 0), App.Vector(-10.906317, -18.999124, 0), App.Vector(-10.854826, -18.998083, 0)], [4, 1, 1, 1, 1, 1, 1, 1, 1, 1, 1, 1, 1, 1, 1, 1, 4], [0, 0.000151605, 0.000298253, 0.000441263, 0.000583229, 0.000725274, 0.000868635, 0.001014928, 0.001166177, 0.001317744, 0.00146543, 0.001610576, 0.001754594, 0.001899821, 0.002045914, 0.002195936, 0.002350312], False, 3, [1, 1, 1, 1, 1, 1, 1, 1, 1, 1, 1, 1, 1, 1, 1, 1, 1, 1, 1], False), False)
sketch9.addGeometry(Part.BSplineCurve([App.Vector(-10.854826, -21.959622, 0), App.Vector(-10.888041, -21.959217, 0), App.Vector(-10.954152, -21.958411, 0), App.Vector(-11.052437, -21.947795, 0), App.Vector(-11.149429, -21.932665, 0), App.Vector(-11.245148, -21.911084, 0), App.Vector(-11.339194, -21.88168, 0), App.Vector(-11.432444, -21.847839, 0), App.Vector(-11.524047, -21.806618, 0), App.Vector(-11.613701, -21.760045, 0), App.Vector(-11.700616, -21.708496, 0), App.Vector(-11.782629, -21.651524, 0), App.Vector(-11.859952, -21.590466, 0), App.Vector(-11.932395, -21.525178, 0), App.Vector(-11.999746, -21.455328, 0), App.Vector(-12.063331, -21.381976, 0), App.Vector(-12.1206, -21.303024, 0), App.Vector(-12.173086, -21.220613, 0), App.Vector(-12.220054, -21.134852, 0), App.Vector(-12.261819, -21.046642, 0), App.Vector(-12.295983, -20.955264, 0), App.Vector(-12.323845, -20.86171, 0), App.Vector(-12.346945, -20.766128, 0), App.Vector(-12.361579, -20.667792, 0), App.Vector(-12.372312, -20.567197, 0), App.Vector(-12.373071, -20.499215, 0), App.Vector(-12.373456, -20.46483, 0)], [4, 1, 1, 1, 1, 1, 1, 1, 1, 1, 1, 1, 1, 1, 1, 1, 1, 1, 1, 1, 1, 1, 1, 1, 4], [0, 0.000099599, 0.000198245, 0.000296222, 0.00039402, 0.00049227, 0.000591646, 0.000691452, 0.000793368, 0.000894612, 0.000994383, 0.001092713, 0.00119001, 0.001286696, 0.001383657, 0.001480979, 0.001579008, 0.001676595, 0.001774142, 0.001871547, 0.001968922, 0.002066879, 0.00216624, 0.00226698, 0.002370083], False, 3, [1, 1, 1, 1, 1, 1, 1, 1, 1, 1, 1, 1, 1, 1, 1, 1, 1, 1, 1, 1, 1, 1, 1, 1, 1, 1, 1], False), False)
sketch9.addGeometry(Part.LineSegment(App.Vector(-7.97602, -22.228852, 0), App.Vector(-8.290122, -22.228852, 0)), False)
sketch9.addGeometry(Part.LineSegment(App.Vector(-8.290122, -22.228852, 0), App.Vector(-8.290122, -20.11497, 0)), False)
sketch9.addGeometry(Part.BSplineCurve([App.Vector(-8.227723, -19.37739, 0), App.Vector(-8.2329, -19.396023, 0), App.Vector(-8.244129, -19.436437, 0), App.Vector(-8.256154, -19.503323, 0), App.Vector(-8.266263, -19.580338, 0), App.Vector(-8.275769, -19.667487, 0), App.Vector(-8.281378, -19.764837, 0), App.Vector(-8.286295, -19.872346, 0), App.Vector(-8.290157, -19.990144, 0), App.Vector(-8.290134, -20.072198, 0), App.Vector(-8.290122, -20.11497, 0)], [4, 1, 1, 1, 1, 1, 1, 1, 4], [0, 0.00005799, 0.000125782, 0.000203619, 0.000291034, 0.000388694, 0.000496078, 0.000613919, 0.000742226], False, 3, [1, 1, 1, 1, 1, 1, 1, 1, 1, 1, 1], False), False)
sketch9.addGeometry(Part.BSplineCurve([App.Vector(-7.133973, -18.639109, 0), App.Vector(-7.167642, -18.639893, 0), App.Vector(-7.2337, -18.641433, 0), App.Vector(-7.331038, -18.650256, 0), App.Vector(-7.424353, -18.666874, 0), App.Vector(-7.514628, -18.688034, 0), App.Vector(-7.600637, -18.717218, 0), App.Vector(-7.68353, -18.751316, 0), App.Vector(-7.761889, -18.793193, 0), App.Vector(-7.836984, -18.839787, 0), App.Vector(-7.906809, -18.892211, 0), App.Vector(-7.970906, -18.949352, 0), App.Vector(-8.029382, -19.010292, 0), App.Vector(-8.081251, -19.075692, 0), App.Vector(-8.127372, -19.145044, 0), App.Vector(-8.167102, -19.218543, 0), App.Vector(-8.201215, -19.296162, 0), App.Vector(-8.218822, -19.350115, 0), App.Vector(-8.227723, -19.37739, 0)], [4, 1, 1, 1, 1, 1, 1, 1, 1, 1, 1, 1, 1, 1, 1, 1, 4], [0, 0.000101022, 0.000198206, 0.000292839, 0.000385177, 0.00047608, 0.000565014, 0.000653769, 0.000742283, 0.000829923, 0.000915339, 0.000999643, 0.001082971, 0.00116542, 0.001249186, 0.001333332, 0.001419362], False, 3, [1, 1, 1, 1, 1, 1, 1, 1, 1, 1, 1, 1, 1, 1, 1, 1, 1, 1, 1], False), False)
sketch9.addGeometry(Part.BSplineCurve([App.Vector(-6.046533, -20.11497, 0), App.Vector(-6.046787, -20.076872, 0), App.Vector(-6.047283, -20.00252, 0), App.Vector(-6.051583, -19.893569, 0), App.Vector(-6.05844, -19.790216, 0), App.Vector(-6.068128, -19.692448, 0), App.Vector(-6.080965, -19.600613, 0), App.Vector(-6.095241, -19.513909, 0), App.Vector(-6.11342, -19.432956, 0), App.Vector(-6.134654, -19.357123, 0), App.Vector(-6.158927, -19.284938, 0), App.Vector(-6.190368, -19.216429, 0), App.Vector(-6.225793, -19.149515, 0), App.Vector(-6.267807, -19.085207, 0), App.Vector(-6.315019, -19.02322, 0), App.Vector(-6.36847, -18.963931, 0), App.Vector(-6.426395, -18.906392, 0), App.Vector(-6.489754, -18.852079, 0), App.Vector(-6.557505, -18.80227, 0), App.Vector(-6.629445, -18.758472, 0), App.Vector(-6.705021, -18.721449, 0), App.Vector(-6.784039, -18.690973, 0), App.Vector(-6.86653, -18.668058, 0), App.Vector(-6.952497, -18.650983, 0), App.Vector(-7.042136, -18.641281, 0), App.Vector(-7.103101, -18.639839, 0), App.Vector(-7.133973, -18.639109, 0)], [4, 1, 1, 1, 1, 1, 1, 1, 1, 1, 1, 1, 1, 1, 1, 1, 1, 1, 1, 1, 1, 1, 1, 1, 4], [0, 0.000114291, 0.000223047, 0.000327049, 0.000424998, 0.000517708, 0.000605194, 0.000688542, 0.000766455, 0.0008414, 0.000916717, 0.000992315, 0.001068354, 0.001146882, 0.001225836, 0.001307639, 0.001391671, 0.001475952, 0.001559641, 0.001643989, 0.001728103, 0.001813335, 0.001900511, 0.00199079, 0.002083404], False, 3, [1, 1, 1, 1, 1, 1, 1, 1, 1, 1, 1, 1, 1, 1, 1, 1, 1, 1, 1, 1, 1, 1, 1, 1, 1, 1, 1], False), False)
sketch9.addGeometry(Part.LineSegment(App.Vector(-6.046533, -20.11497, 0), App.Vector(-6.046533, -22.228852, 0)), False)
sketch9.addGeometry(Part.LineSegment(App.Vector(-6.046533, -22.228852, 0), App.Vector(-6.360635, -22.228852, 0)), False)
sketch9.addGeometry(Part.LineSegment(App.Vector(-6.360635, -22.228852, 0), App.Vector(-6.360635, -20.131797, 0)), False)
sketch9.addGeometry(Part.BSplineCurve([App.Vector(-6.396392, -19.588428, 0), App.Vector(-6.393392, -19.600776, 0), App.Vector(-6.386707, -19.628294, 0), App.Vector(-6.38046, -19.674815, 0), App.Vector(-6.373953, -19.729704, 0), App.Vector(-6.369439, -19.793356, 0), App.Vector(-6.365037, -19.865557, 0), App.Vector(-6.362404, -19.946683, 0), App.Vector(-6.361187, -20.03644, 0), App.Vector(-6.360825, -20.099078, 0), App.Vector(-6.360635, -20.131797, 0)], [4, 1, 1, 1, 1, 1, 1, 1, 4], [0, 0.0000381, 0.000084902, 0.000140649, 0.000203941, 0.000276279, 0.000357657, 0.000447412, 0.000545571], False, 3, [1, 1, 1, 1, 1, 1, 1, 1, 1, 1, 1], False), False)
sketch9.addGeometry(Part.BSplineCurve([App.Vector(-7.151501, -18.998083, 0), App.Vector(-7.122947, -18.999157, 0), App.Vector(-7.066004, -19.001298, 0), App.Vector(-6.981398, -19.01456, 0), App.Vector(-6.898998, -19.03846, 0), App.Vector(-6.818397, -19.0693, 0), App.Vector(-6.742846, -19.110048, 0), App.Vector(-6.672303, -19.157119, 0), App.Vector(-6.609339, -19.212329, 0), App.Vector(-6.551881, -19.27343, 0), App.Vector(-6.501846, -19.34237, 0), App.Vector(-6.458475, -19.417648, 0), App.Vector(-6.422949, -19.500397, 0), App.Vector(-6.405405, -19.558552, 0), App.Vector(-6.396392, -19.588428, 0)], [4, 1, 1, 1, 1, 1, 1, 1, 1, 1, 1, 1, 4], [0, 0.000085678, 0.00017086, 0.000256092, 0.000342674, 0.000429242, 0.000513055, 0.000596556, 0.000679898, 0.000764179, 0.00085149, 0.000940054, 0.001033621], False, 3, [1, 1, 1, 1, 1, 1, 1, 1, 1, 1, 1, 1, 1, 1, 1], False), False)
sketch9.addGeometry(Part.BSplineCurve([App.Vector(-7.961997, -19.666252, 0), App.Vector(-7.95682, -19.633405, 0), App.Vector(-7.946757, -19.569563, 0), App.Vector(-7.92111, -19.478654, 0), App.Vector(-7.885293, -19.396723, 0), App.Vector(-7.84285, -19.321212, 0), App.Vector(-7.786917, -19.254222, 0), App.Vector(-7.719914, -19.192511, 0), App.Vector(-7.638736, -19.138539, 0), App.Vector(-7.548475, -19.089188, 0), App.Vector(-7.45119, -19.049523, 0), App.Vector(-7.351779, -19.01953, 0), App.Vector(-7.251736, -19.001251, 0), App.Vector(-7.18476, -18.999134, 0), App.Vector(-7.151501, -18.998083, 0)], [4, 1, 1, 1, 1, 1, 1, 1, 1, 1, 1, 1, 4], [0, 0.00009971, 0.000193801, 0.000282365, 0.000367504, 0.000452699, 0.000543015, 0.000639862, 0.000744331, 0.000851226, 0.000954377, 0.001055468, 0.001155185], False, 3, [1, 1, 1, 1, 1, 1, 1, 1, 1, 1, 1, 1, 1, 1, 1], False), False)
sketch9.addGeometry(Part.BSplineCurve([App.Vector(-7.97602, -20.131797, 0), App.Vector(-7.976067, -20.102116, 0), App.Vector(-7.976155, -20.045792, 0), App.Vector(-7.975563, -19.965624, 0), App.Vector(-7.973903, -19.894351, 0), App.Vector(-7.972857, -19.8317, 0), App.Vector(-7.97053, -19.777957, 0), App.Vector(-7.968632, -19.732832, 0), App.Vector(-7.966191, -19.696538, 0), App.Vector(-7.963258, -19.675357, 0), App.Vector(-7.961997, -19.666252, 0)], [4, 1, 1, 1, 1, 1, 1, 1, 4], [0, 0.000089042, 0.000168973, 0.000240502, 0.000302917, 0.000356945, 0.000401866, 0.000438432, 0.000465999], False, 3, [1, 1, 1, 1, 1, 1, 1, 1, 1, 1, 1], False), False)
sketch9.addGeometry(Part.LineSegment(App.Vector(-7.97602, -20.131797, 0), App.Vector(-7.97602, -22.228852, 0)), False)
add_polygon(sketch9, [(-5.552943, -22.228852), (-5.552943, -21.869878), (-4.790122, -21.869878), (-4.790122, -18.728852), (-4.47602, -18.728852), (-4.47602, -21.869878), (-3.713199, -21.869878), (-3.713199, -22.228852)])
sketch9.addConstraint([
    Sketcher.Constraint("Block", 0),
    Sketcher.Constraint("Block", 1),
    Sketcher.Constraint("Block", 2),
    Sketcher.Constraint("Block", 3),
    Sketcher.Constraint("Block", 4),
    Sketcher.Constraint("Block", 5),
    Sketcher.Constraint("Block", 6),
    Sketcher.Constraint("Block", 7),
    Sketcher.Constraint("Block", 10),
    Sketcher.Constraint("Block", 11),
    Sketcher.Constraint("Block", 12),
    Sketcher.Constraint("Block", 16),
    Sketcher.Constraint("Block", 17),
    Sketcher.Constraint("Block", 18),
    Sketcher.Constraint("Block", 19),
    Sketcher.Constraint("Coincident", 8, 2, 9, 1),
    Sketcher.Constraint("Coincident", 9, 2, 10, 2),
    Sketcher.Constraint("Coincident", 12, 1, 13, 1),
    Sketcher.Constraint("Coincident", 13, 2, 14, 1),
    Sketcher.Constraint("Coincident", 14, 2, 15, 1),
    Sketcher.Constraint("Coincident", 15, 2, 16, 2),
    Sketcher.Constraint("Coincident", 19, 1, 20, 1),
    Sketcher.Constraint("Coincident", 20, 2, 8, 1),
    Sketcher.Constraint("Horizontal", 8),
    Sketcher.Constraint("Vertical", 9),
    Sketcher.Constraint("Vertical", 13),
    Sketcher.Constraint("Horizontal", 14),
    Sketcher.Constraint("Vertical", 15),
    Sketcher.Constraint("Vertical", 20),
    Sketcher.Constraint("Vertical", 21),
    Sketcher.Constraint("Horizontal", 22),
    Sketcher.Constraint("Vertical", 23),
    Sketcher.Constraint("Horizontal", 24),
    Sketcher.Constraint("Vertical", 25),
    Sketcher.Constraint("Horizontal", 26),
    Sketcher.Constraint("Vertical", 27),
    Sketcher.Constraint("Horizontal", 28),
    Sketcher.Constraint("Horizontal", 8, 2, 13, 2),
    Sketcher.Constraint("Horizontal", 22, 2, 25, 2),
    Sketcher.Constraint("Horizontal", 20, 2, 27, 2),
    Sketcher.Constraint("Equal", 14, 24),
    Sketcher.Constraint("Equal", 22, 26),
    Sketcher.Constraint("DistanceY", 13, 2, 23, 2, 3.5),
    Sketcher.Constraint("DistanceX", 9, 2, 23, 2, 3.5),
    Sketcher.Constraint("DistanceX", 22, 1, 22, 2, 0.762821),
    Sketcher.Constraint("DistanceY", 9, 1, 9, 2, 2.113882),
    Sketcher.Constraint("DistanceY", 21, 1, 21, 2, 0.358974),
])
pad9 = doc.addObject("PartDesign::Pad", "Pad008")
body.addObject(pad9)
pad9.Profile = sketch9
pad9.Length = 0.1
pad9.Reversed = True

sketch10 = doc.addObject("Sketcher::SketchObject", "Sketch009")
body.addObject(sketch10)
sketch10.AttachmentSupport = (doc.XZ_Plane, [""])
sketch10.MapMode = "FlatFace"
sketch10.AttachmentOffset = App.Placement(App.Vector(0, 0, -1.6), App.Rotation())
add_polygon(sketch10, [(-8.89, 25.98), (-8.89, 29.48), (-8.57, 29.48), (-8.57, 25.98)])
add_polygon(sketch10, [(-7.67, 25.98), (-7.67, 29.48), (-7.36, 29.48), (-7.36, 26.74), (-5.05, 29.48), (-4.98, 29.48), (-4.98, 25.98), (-5.3, 25.98), (-5.3, 28.74), (-7.61, 25.98)])
sketch10.addConstraint([
    Sketcher.Constraint("Vertical", 0),
    Sketcher.Constraint("Horizontal", 1),
    Sketcher.Constraint("Vertical", 2),
    Sketcher.Constraint("Horizontal", 3),
    Sketcher.Constraint("Vertical", 4),
    Sketcher.Constraint("Horizontal", 5),
    Sketcher.Constraint("Vertical", 6),
    Sketcher.Constraint("Horizontal", 8),
    Sketcher.Constraint("Vertical", 9),
    Sketcher.Constraint("Horizontal", 10),
    Sketcher.Constraint("Vertical", 11),
    Sketcher.Constraint("Horizontal", 13),
    Sketcher.Constraint("Horizontal", 1, 2, 4, 2),
    Sketcher.Constraint("Horizontal", 5, 2, 7, 2),
    Sketcher.Constraint("Horizontal", 3, 2, 9, 2),
    Sketcher.Constraint("Horizontal", 10, 2, 12, 2),
    Sketcher.Constraint("Equal", 3, 5),
    Sketcher.Constraint("Equal", 5, 10),
    Sketcher.Constraint("DistanceY", 0, 1, 0, 2, 3.5),
    Sketcher.Constraint("DistanceX", 12, 2, 10, 2, 2.3123),
    Sketcher.Constraint("DistanceX", 1, 1, 1, 2, 0.314103),
    Sketcher.Constraint("DistanceX", 8, 1, 8, 2, 0.071514),
    Sketcher.Constraint("DistanceX", 13, 2, 13, 1, 0.065905),
    Sketcher.Constraint("DistanceY", 6, 2, 6, 1, 2.748397),
    Sketcher.Constraint("DistanceY", 11, 1, 11, 2, 2.754708),
    Sketcher.Constraint("DistanceY", -1, 1, 0, 2, 29.48464),
    Sketcher.Constraint("DistanceX", 1, 2, -1, 1, 8.57137),
    Sketcher.Constraint("DistanceX", 5, 2, -1, 1, 7.359832),
])
pad10 = doc.addObject("PartDesign::Pad", "Pad009")
body.addObject(pad10)
pad10.Profile = sketch10
pad10.Length = 0.1
pad10.Reversed = True

sketch11 = doc.addObject("Sketcher::SketchObject", "Sketch010")
body.addObject(sketch11)
sketch11.AttachmentSupport = (doc.XZ_Plane, [""])
sketch11.MapMode = "FlatFace"
sketch11.AttachmentOffset = App.Placement(App.Vector(0, 0, -1.6), App.Rotation())
add_polygon(sketch11, [(-16.4, -19.6), (-16.4, -17.4), (-14.5, -17.4), (-14.5, -19.6)])
add_polygon(sketch11, [(-16.4, -14.6), (-16.4, -11.8), (-14.5, -11.8), (-14.5, -14.6)])
add_polygon(sketch11, [(-16.4, -8.6), (-16.4, -6.6), (-14.5, -6.6), (-14.5, -8.6)])
sketch11.addConstraint([
    Sketcher.Constraint("Vertical", 0),
    Sketcher.Constraint("Horizontal", 1),
    Sketcher.Constraint("Vertical", 2),
    Sketcher.Constraint("Horizontal", 3),
    Sketcher.Constraint("Vertical", 4),
    Sketcher.Constraint("Horizontal", 5),
    Sketcher.Constraint("Vertical", 6),
    Sketcher.Constraint("Horizontal", 7),
    Sketcher.Constraint("Vertical", 8),
    Sketcher.Constraint("Horizontal", 9),
    Sketcher.Constraint("Vertical", 10),
    Sketcher.Constraint("Horizontal", 11),
    Sketcher.Constraint("Vertical", 3, 2, 4, 2),
    Sketcher.Constraint("Vertical", 2, 2, 5, 2),
    Sketcher.Constraint("Vertical", 7, 2, 8, 2),
    Sketcher.Constraint("Vertical", 6, 2, 9, 2),
    Sketcher.Constraint("DistanceY", 0, 1, 0, 2, 2.173559),
    Sketcher.Constraint("DistanceX", 1, 1, 1, 2, 1.910097),
    Sketcher.Constraint("DistanceY", 4, 1, 4, 2, 2.832213),
    Sketcher.Constraint("DistanceY", 8, 1, 8, 2, 1.975963),
    Sketcher.Constraint("DistanceX", 1, 2, -1, 1, 14.537559),
    Sketcher.Constraint("DistanceY", 0, 2, 4, 2, 5.598561),
    Sketcher.Constraint("DistanceY", 4, 2, 8, 2, 5.203369),
    Sketcher.Constraint("DistanceY", 0, 2, -1, 1, 17.411544),
])
pad11 = doc.addObject("PartDesign::Pad", "Pad010")
body.addObject(pad11)
pad11.Profile = sketch11
pad11.Length = 0.1
pad11.Reversed = True

doc.recompute()
